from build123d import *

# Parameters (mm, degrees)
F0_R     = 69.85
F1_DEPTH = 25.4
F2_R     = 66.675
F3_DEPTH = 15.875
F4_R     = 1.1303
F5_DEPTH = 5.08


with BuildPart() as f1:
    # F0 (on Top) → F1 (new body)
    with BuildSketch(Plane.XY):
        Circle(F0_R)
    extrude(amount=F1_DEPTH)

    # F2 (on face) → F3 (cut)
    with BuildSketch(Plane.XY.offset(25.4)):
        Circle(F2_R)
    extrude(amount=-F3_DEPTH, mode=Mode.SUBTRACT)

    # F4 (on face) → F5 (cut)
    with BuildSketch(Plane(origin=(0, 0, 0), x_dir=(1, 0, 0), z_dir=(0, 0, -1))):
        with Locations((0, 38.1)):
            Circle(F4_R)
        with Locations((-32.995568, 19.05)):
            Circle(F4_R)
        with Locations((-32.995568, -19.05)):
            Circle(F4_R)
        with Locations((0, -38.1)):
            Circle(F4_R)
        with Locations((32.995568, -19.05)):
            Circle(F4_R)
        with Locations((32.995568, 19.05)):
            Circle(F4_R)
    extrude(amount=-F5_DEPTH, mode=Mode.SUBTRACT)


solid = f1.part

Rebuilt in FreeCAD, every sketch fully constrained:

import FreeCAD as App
import Part
import Sketcher
Q = App.Units.Quantity

doc = App.newDocument("Part")
params = doc.addObject("Spreadsheet::Sheet", "Params")
for row, (alias, value) in enumerate([
    ("sketch1_diameter", "5.5 in"),
    ("pad1_length", "1 in"),
    ("sketch2_diameter", "5.25 in"),
    ("pocket1_length", "0.625 in"),
    ("sketch3_diameter", "0.089 in"),
    ("pocket2_length", "0.2 in"),
], start=1):
    params.set(f"A{row}", alias)
    params.set(f"B{row}", "=" + value)
    params.setAlias(f"B{row}", alias)

body = doc.addObject("PartDesign::Body", "Body")

sketch1 = doc.addObject("Sketcher::SketchObject", "Sketch")
body.addObject(sketch1)
sketch1.AttachmentSupport = (doc.XY_Plane, [""])
sketch1.MapMode = "FlatFace"
sketch1.addGeometry(Part.Circle(App.Vector(0, 0, 0), App.Vector(0, 0, 1), 69.85), False)
sketch1.addConstraint(Sketcher.Constraint("Coincident", 0, 3, -1, 1))
sketch1.addConstraint(Sketcher.Constraint("Diameter", 0, Q("5.5 in")))
sketch1.setExpression("Constraints[1]", "Params.sketch1_diameter")
pad1 = doc.addObject("PartDesign::Pad", "Pad")
body.addObject(pad1)
pad1.Profile = sketch1
pad1.setExpression("Length", "Params.pad1_length")

sketch2 = doc.addObject("Sketcher::SketchObject", "Sketch001")
body.addObject(sketch2)
sketch2.AttachmentSupport = (doc.XY_Plane, [""])
sketch2.MapMode = "FlatFace"
sketch2.AttachmentOffset = App.Placement(App.Vector(0, 0, 1 * 25.4), App.Rotation())
sketch2.addGeometry(Part.Circle(App.Vector(0, 0, 0), App.Vector(0, 0, 1), 66.675), False)
sketch2.addConstraint(Sketcher.Constraint("Coincident", 0, 3, -1, 1))
sketch2.addConstraint(Sketcher.Constraint("Diameter", 0, Q("5.25 in")))
sketch2.setExpression("Constraints[1]", "Params.sketch2_diameter")
pocket1 = doc.addObject("PartDesign::Pocket", "Pocket")
body.addObject(pocket1)
pocket1.Profile = sketch2
pocket1.setExpression("Length", "Params.pocket1_length")

sketch3 = doc.addObject("Sketcher::SketchObject", "Sketch002")
body.addObject(sketch3)
sketch3.AttachmentSupport = (doc.XY_Plane, [""])
sketch3.MapMode = "FlatFace"
sketch3.addGeometry(Part.Circle(App.Vector(0, -38.1, 0), App.Vector(0, 0, 1), 1.1303), False)
sketch3.addGeometry(Part.Circle(App.Vector(-32.995568, -19.05, 0), App.Vector(0, 0, 1), 1.1303), False)
sketch3.addGeometry(Part.Circle(App.Vector(-32.995568, 19.05, 0), App.Vector(0, 0, 1), 1.1303), False)
sketch3.addGeometry(Part.Circle(App.Vector(0, 38.1, 0), App.Vector(0, 0, 1), 1.1303), False)
sketch3.addGeometry(Part.Circle(App.Vector(32.995568, 19.05, 0), App.Vector(0, 0, 1), 1.1303), False)
sketch3.addGeometry(Part.Circle(App.Vector(32.995568, -19.05, 0), App.Vector(0, 0, 1), 1.1303), False)
sketch3.addConstraint(Sketcher.Constraint("Equal", 0, 1))
sketch3.addConstraint(Sketcher.Constraint("Equal", 1, 2))
sketch3.addConstraint(Sketcher.Constraint("Equal", 2, 3))
sketch3.addConstraint(Sketcher.Constraint("Equal", 3, 4))
sketch3.addConstraint(Sketcher.Constraint("Equal", 4, 5))
sketch3.addConstraint(Sketcher.Constraint("Symmetric", 0, 3, 3, 3, -1, 1))
sketch3.addConstraint(Sketcher.Constraint("Symmetric", 1, 3, 4, 3, -1, 1))
sketch3.addConstraint(Sketcher.Constraint("Symmetric", 2, 3, 5, 3, -1, 1))
sketch3.addConstraint(Sketcher.Constraint("Symmetric", 2, 3, 4, 3, -2))
sketch3.addConstraint(Sketcher.Constraint("PointOnObject", 0, 3, -2))
sketch3.addConstraint(Sketcher.Constraint("Diameter", 0, Q("0.089 in")))
sketch3.addConstraint(Sketcher.Constraint("DistanceY", 0, 3, 3, 3, Q("3 in")))
sketch3.addConstraint(Sketcher.Constraint("DistanceY", 1, 3, 2, 3, Q("1.5 in")))
sketch3.addConstraint(Sketcher.Constraint("DistanceX", 1, 3, -1, 1, 32.995568))
sketch3.setExpression("Constraints[10]", "Params.sketch3_diameter")
pocket2 = doc.addObject("PartDesign::Pocket", "Pocket001")
body.addObject(pocket2)
pocket2.Profile = sketch3
pocket2.setExpression("Length", "Params.pocket2_length")
pocket2.Reversed = True

doc.recompute()
